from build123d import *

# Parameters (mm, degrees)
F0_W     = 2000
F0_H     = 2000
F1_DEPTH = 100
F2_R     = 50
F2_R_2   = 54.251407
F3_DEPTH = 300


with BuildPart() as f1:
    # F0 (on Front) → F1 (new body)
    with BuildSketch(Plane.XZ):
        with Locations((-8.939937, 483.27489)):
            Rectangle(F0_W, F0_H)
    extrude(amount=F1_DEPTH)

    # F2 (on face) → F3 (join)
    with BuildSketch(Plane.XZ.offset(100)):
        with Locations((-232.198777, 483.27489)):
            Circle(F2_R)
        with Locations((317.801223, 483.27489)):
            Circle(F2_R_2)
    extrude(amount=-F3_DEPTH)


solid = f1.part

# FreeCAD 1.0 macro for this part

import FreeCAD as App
import Part
import Sketcher
Q = App.Units.Quantity


def add_polygon(sketch, points):
    """Adds a closed chain of lines whose ends are joined by coincident constraints."""
    first, n = sketch.GeometryCount, len(points)
    for a, b in zip(points, points[1:] + points[:1]):
        sketch.addGeometry(Part.LineSegment(App.Vector(*a, 0), App.Vector(*b, 0)), False)
    for i in range(n):
        sketch.addConstraint(Sketcher.Constraint("Coincident", first + i, 2, first + (i + 1) % n, 1))

doc = App.newDocument("Part")
params = doc.addObject("Spreadsheet::Sheet", "Params")
for row, (alias, value) in enumerate([
    ("sketch1_width", "2000 mm"),
    ("pad1_length", "100 mm"),
    ("sketch2_diameter", "100 mm"),
    ("pad2_length", "300 mm"),
], start=1):
    params.set(f"A{row}", alias)
    params.set(f"B{row}", "=" + value)
    params.setAlias(f"B{row}", alias)

body = doc.addObject("PartDesign::Body", "Body")

# Sketch on XZ plane
sketch1 = body.newObject("Sketcher::SketchObject", "Sketch")
sketch1.AttachmentSupport = (doc.getObject("XZ_Plane"), [""])
sketch1.MapMode = "FlatFace"
add_polygon(sketch1, [(-1009, 1483), (-1009, -517), (991, -517), (991, 1483)])  # lines 0-3
sketch1.addConstraint([
    Sketcher.Constraint("Vertical", 0),
    Sketcher.Constraint("Horizontal", 1),
    Sketcher.Constraint("Vertical", 2),
    Sketcher.Constraint("Horizontal", 3),
    Sketcher.Constraint("Equal", 3, 0),
    Sketcher.Constraint("DistanceX", 1, 1, 1, 2, Q("2000 mm")),
    Sketcher.Constraint("DistanceY", 0, 2, -1, 1, Q("516.72511 mm")),
    Sketcher.Constraint("DistanceX", 0, 2, -1, 1, Q("1008.939937 mm")),
])
sketch1.setExpression("Constraints[9]", "Params.sketch1_width")
pad1 = body.newObject("PartDesign::Pad", "Pad")
pad1.Profile = sketch1
pad1.setExpression("Length", "Params.pad1_length")

# Sketch on XZ plane
sketch2 = body.newObject("Sketcher::SketchObject", "Sketch001")
sketch2.AttachmentSupport = (doc.getObject("XZ_Plane"), [""])
sketch2.MapMode = "FlatFace"
sketch2.AttachmentOffset = App.Placement(App.Vector(0, 0, 100), App.Rotation())
sketch2.addGeometry([
    Part.Circle(App.Vector(-232, 483, 0), App.Vector(0, 0, 1), 50),
    Part.Circle(App.Vector(318, 483, 0), App.Vector(0, 0, 1), 54),
], False)
sketch2.addConstraint([
    Sketcher.Constraint("Horizontal", 0, 3, 1, 3),
    Sketcher.Constraint("Diameter", 0, Q("100 mm")),
    Sketcher.Constraint("DistanceX", 0, 3, 1, 3, Q("550 mm")),
    Sketcher.Constraint("Diameter", 1, Q("108.502814 mm")),
    Sketcher.Constraint("DistanceY", -1, 1, 0, 3, Q("483.27489 mm")),
    Sketcher.Constraint("DistanceX", 0, 3, -1, 1, Q("232.198777 mm")),
])
sketch2.setExpression("Constraints[1]", "Params.sketch2_diameter")
pad2 = body.newObject("PartDesign::Pad", "Pad001")
pad2.Profile = sketch2
pad2.setExpression("Length", "Params.pad2_length")
pad2.Reversed = True

doc.recompute()
